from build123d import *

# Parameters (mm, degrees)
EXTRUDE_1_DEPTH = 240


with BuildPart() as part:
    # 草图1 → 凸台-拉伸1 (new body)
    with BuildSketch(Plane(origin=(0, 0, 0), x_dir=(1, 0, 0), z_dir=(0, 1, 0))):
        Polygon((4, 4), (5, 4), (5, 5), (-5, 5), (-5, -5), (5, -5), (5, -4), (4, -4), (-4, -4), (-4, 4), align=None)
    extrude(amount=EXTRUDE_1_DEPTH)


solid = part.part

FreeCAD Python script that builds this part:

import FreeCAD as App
import Part
import Sketcher
from FreeCAD import Vector

doc = App.newDocument("Part")
body = doc.addObject("PartDesign::Body", "Body")

# Sketch on XZ plane
sketch1 = body.newObject("Sketcher::SketchObject", "Sketch")
sketch1.AttachmentSupport = (doc.getObject("XZ_Plane"), [""])
sketch1.MapMode = "FlatFace"
sketch1.addGeometry([
    Part.LineSegment(Vector(5, -4, 0), Vector(5, -5, 0)),  # 0
    Part.LineSegment(Vector(5, -5, 0), Vector(-5, -5, 0)),  # 1
    Part.LineSegment(Vector(-5, -5, 0), Vector(-5, 5, 0)),  # 2
    Part.LineSegment(Vector(-5, 5, 0), Vector(5, 5, 0)),  # 3
    Part.LineSegment(Vector(5, 5, 0), Vector(5, 4, 0)),  # 4
    Part.LineSegment(Vector(5, 4, 0), Vector(-4, 4, 0)),  # 5
    Part.LineSegment(Vector(-4, 4, 0), Vector(-4, -4, 0)),  # 6
    Part.LineSegment(Vector(-4, -4, 0), Vector(5, -4, 0)),  # 7
], False)
sketch1.addConstraint([
    Sketcher.Constraint("Coincident", 0, 2, 1, 1),
    Sketcher.Constraint("Coincident", 1, 2, 2, 1),
    Sketcher.Constraint("Coincident", 2, 2, 3, 1),
    Sketcher.Constraint("Coincident", 3, 2, 4, 1),
    Sketcher.Constraint("Coincident", 4, 2, 5, 1),
    Sketcher.Constraint("Coincident", 5, 2, 6, 1),
    Sketcher.Constraint("Coincident", 6, 2, 7, 1),
    Sketcher.Constraint("Coincident", 7, 2, 0, 1),
    Sketcher.Constraint("Vertical", 0),
    Sketcher.Constraint("Horizontal", 1),
    Sketcher.Constraint("Vertical", 2),
    Sketcher.Constraint("Horizontal", 3),
    Sketcher.Constraint("Vertical", 4),
    Sketcher.Constraint("Horizontal", 5),
    Sketcher.Constraint("Vertical", 6),
    Sketcher.Constraint("Horizontal", 7),
    Sketcher.Constraint("Symmetric", 0, 2, 2, 2, -1, 1),
    Sketcher.Constraint("Symmetric", 4, 2, 7, 2, -1),
    Sketcher.Constraint("Equal", 3, 2),
    Sketcher.Constraint("DistanceX", 1, 2, 1, 1, 10.0),
    Sketcher.Constraint("DistanceX", 5, 2, 5, 1, 9.0),
    Sketcher.Constraint("DistanceY", 0, 2, 0, 1, 1.0),
])
pad1 = body.newObject("PartDesign::Pad", "Pad")
pad1.Profile = sketch1
pad1.Length = 240
pad1.Reversed = True

doc.recompute()
